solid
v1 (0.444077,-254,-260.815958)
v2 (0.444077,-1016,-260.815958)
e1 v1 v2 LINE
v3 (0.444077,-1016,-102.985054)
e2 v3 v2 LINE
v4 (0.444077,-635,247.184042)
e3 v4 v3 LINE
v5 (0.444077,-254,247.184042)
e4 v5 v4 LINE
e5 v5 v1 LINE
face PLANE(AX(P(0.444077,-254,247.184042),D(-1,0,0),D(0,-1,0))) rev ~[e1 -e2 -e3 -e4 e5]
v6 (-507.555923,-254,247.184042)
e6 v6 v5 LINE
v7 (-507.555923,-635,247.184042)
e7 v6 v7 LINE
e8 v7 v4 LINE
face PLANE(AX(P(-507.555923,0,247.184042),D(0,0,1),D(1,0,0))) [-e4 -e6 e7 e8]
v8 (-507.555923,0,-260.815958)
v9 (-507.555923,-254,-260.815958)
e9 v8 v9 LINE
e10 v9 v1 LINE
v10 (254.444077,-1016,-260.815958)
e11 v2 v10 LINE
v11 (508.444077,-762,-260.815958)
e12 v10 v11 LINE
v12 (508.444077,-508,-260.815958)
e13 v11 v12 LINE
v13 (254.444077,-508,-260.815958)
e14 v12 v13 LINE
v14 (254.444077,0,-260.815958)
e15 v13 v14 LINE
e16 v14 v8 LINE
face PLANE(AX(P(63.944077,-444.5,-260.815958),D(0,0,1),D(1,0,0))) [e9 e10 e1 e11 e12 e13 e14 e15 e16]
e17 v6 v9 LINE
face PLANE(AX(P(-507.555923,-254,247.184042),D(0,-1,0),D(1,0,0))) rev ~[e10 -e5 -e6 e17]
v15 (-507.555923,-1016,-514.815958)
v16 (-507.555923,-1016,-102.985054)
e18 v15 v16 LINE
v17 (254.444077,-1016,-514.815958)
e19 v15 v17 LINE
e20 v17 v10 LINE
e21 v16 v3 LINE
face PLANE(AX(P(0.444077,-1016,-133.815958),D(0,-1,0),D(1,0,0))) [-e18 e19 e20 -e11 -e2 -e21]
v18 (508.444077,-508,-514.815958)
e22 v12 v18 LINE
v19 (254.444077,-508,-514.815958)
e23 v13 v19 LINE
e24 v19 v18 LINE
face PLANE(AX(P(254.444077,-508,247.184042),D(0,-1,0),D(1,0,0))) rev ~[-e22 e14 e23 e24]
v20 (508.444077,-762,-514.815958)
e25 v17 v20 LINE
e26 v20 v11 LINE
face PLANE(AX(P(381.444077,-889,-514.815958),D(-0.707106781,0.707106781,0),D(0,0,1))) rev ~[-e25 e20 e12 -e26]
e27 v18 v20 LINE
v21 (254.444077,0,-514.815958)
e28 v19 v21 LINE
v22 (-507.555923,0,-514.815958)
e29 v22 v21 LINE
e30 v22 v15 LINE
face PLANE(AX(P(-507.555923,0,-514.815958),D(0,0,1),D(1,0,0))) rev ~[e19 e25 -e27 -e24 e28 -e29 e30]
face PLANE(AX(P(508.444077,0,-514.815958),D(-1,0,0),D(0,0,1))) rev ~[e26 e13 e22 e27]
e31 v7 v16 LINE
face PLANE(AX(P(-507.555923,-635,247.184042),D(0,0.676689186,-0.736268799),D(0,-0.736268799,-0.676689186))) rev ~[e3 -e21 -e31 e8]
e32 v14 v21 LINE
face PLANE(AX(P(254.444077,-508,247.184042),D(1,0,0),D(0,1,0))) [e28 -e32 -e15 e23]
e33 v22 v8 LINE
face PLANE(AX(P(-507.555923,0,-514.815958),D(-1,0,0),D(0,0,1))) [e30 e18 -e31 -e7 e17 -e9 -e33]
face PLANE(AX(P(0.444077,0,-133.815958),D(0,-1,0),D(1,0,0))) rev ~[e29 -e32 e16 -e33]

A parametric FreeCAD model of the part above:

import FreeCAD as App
import Part
import Sketcher
from FreeCAD import Vector
Q = App.Units.Quantity


def edges_at(feature, points):
    """Names of the edges that pass closest to the given points."""
    edges = feature.Shape.Edges
    near = lambda p: min(range(len(edges)), key=lambda i: edges[i].distToShape(Part.Vertex(*p))[0])
    return sorted({f"Edge{near(p) + 1}" for p in points})

doc = App.newDocument("Part")
body = doc.addObject("PartDesign::Body", "Body")

sketch1 = doc.addObject("Sketcher::SketchObject", "Sketch")
body.addObject(sketch1)
sketch1.AttachmentSupport = (doc.XZ_Plane, [""])
sketch1.MapMode = "FlatFace"
sketch1.addGeometry(Part.LineSegment(Vector(-507.555923, 247.184042, 0), Vector(-507.555923, -514.815958, 0)), False)
sketch1.addGeometry(Part.LineSegment(Vector(-507.555923, -514.815958, 0), Vector(508.444077, -514.815958, 0)), False)
sketch1.addGeometry(Part.LineSegment(Vector(508.444077, -514.815958, 0), Vector(508.444077, 247.184042, 0)), False)
sketch1.addGeometry(Part.LineSegment(Vector(508.444077, 247.184042, 0), Vector(-507.555923, 247.184042, 0)), False)
sketch1.addConstraint(Sketcher.Constraint("Coincident", 0, 2, 1, 1))
sketch1.addConstraint(Sketcher.Constraint("Coincident", 1, 2, 2, 1))
sketch1.addConstraint(Sketcher.Constraint("Coincident", 2, 2, 3, 1))
sketch1.addConstraint(Sketcher.Constraint("Coincident", 3, 2, 0, 1))
sketch1.addConstraint(Sketcher.Constraint("Vertical", 0))
sketch1.addConstraint(Sketcher.Constraint("Horizontal", 1))
sketch1.addConstraint(Sketcher.Constraint("Vertical", 2))
sketch1.addConstraint(Sketcher.Constraint("Horizontal", 3))
sketch1.addConstraint(Sketcher.Constraint("DistanceX", 1, 1, 1, 2, Q("40 in")))
sketch1.addConstraint(Sketcher.Constraint("DistanceY", 0, 2, 0, 1, Q("30 in")))
sketch1.addConstraint(Sketcher.Constraint("DistanceY", 0, 2, -1, 1, Q("514.815958 mm")))
sketch1.addConstraint(Sketcher.Constraint("DistanceX", 0, 2, -1, 1, Q("507.555923 mm")))
pad1 = doc.addObject("PartDesign::Pad", "Pad")
body.addObject(pad1)
pad1.Profile = sketch1
pad1.Length = Q("40 in")

sketch2 = doc.addObject("Sketcher::SketchObject", "Sketch001")
body.addObject(sketch2)
sketch2.AttachmentSupport = (doc.XY_Plane, [""])
sketch2.MapMode = "FlatFace"
sketch2.AttachmentOffset = App.Placement(Vector(0, 0, 247.184042), App.Rotation())
sketch2.addGeometry(Part.LineSegment(Vector(254.444077, 0, 0), Vector(254.444077, -508, 0)), False)
sketch2.addGeometry(Part.LineSegment(Vector(254.444077, -508, 0), Vector(508.444077, -508, 0)), False)
sketch2.addGeometry(Part.LineSegment(Vector(508.444077, -508, 0), Vector(508.444077, 0, 0)), False)
sketch2.addGeometry(Part.LineSegment(Vector(508.444077, 0, 0), Vector(254.444077, 0, 0)), False)
sketch2.addConstraint(Sketcher.Constraint("Coincident", 0, 2, 1, 1))
sketch2.addConstraint(Sketcher.Constraint("Coincident", 1, 2, 2, 1))
sketch2.addConstraint(Sketcher.Constraint("Coincident", 2, 2, 3, 1))
sketch2.addConstraint(Sketcher.Constraint("Coincident", 3, 2, 0, 1))
sketch2.addConstraint(Sketcher.Constraint("Vertical", 0))
sketch2.addConstraint(Sketcher.Constraint("Horizontal", 1))
sketch2.addConstraint(Sketcher.Constraint("Vertical", 2))
sketch2.addConstraint(Sketcher.Constraint("Horizontal", 3))
sketch2.addConstraint(Sketcher.Constraint("PointOnObject", 2, 2, -1))
sketch2.addConstraint(Sketcher.Constraint("DistanceX", 1, 1, 1, 2, Q("10 in")))
sketch2.addConstraint(Sketcher.Constraint("DistanceY", 0, 2, 0, 1, Q("20 in")))
sketch2.addConstraint(Sketcher.Constraint("DistanceX", -1, 1, 0, 2, Q("254.444077 mm")))
pocket1 = doc.addObject("PartDesign::Pocket", "Pocket")
body.addObject(pocket1)
pocket1.Profile = sketch2
pocket1.Length = Q("40 in")

sketch3 = doc.addObject("Sketcher::SketchObject", "Sketch002")
body.addObject(sketch3)
sketch3.AttachmentSupport = (doc.XY_Plane, [""])
sketch3.MapMode = "FlatFace"
sketch3.AttachmentOffset = App.Placement(Vector(0, 0, 247.184042), App.Rotation())
sketch3.addGeometry(Part.LineSegment(Vector(0.444077, -254, 0), Vector(0.444077, -1016, 0)), False)
sketch3.addGeometry(Part.LineSegment(Vector(0.444077, -1016, 0), Vector(508.444077, -1016, 0)), False)
sketch3.addGeometry(Part.LineSegment(Vector(508.444077, -1016, 0), Vector(508.444077, -508, 0)), False)
sketch3.addGeometry(Part.LineSegment(Vector(508.444077, -508, 0), Vector(254.444077, -508, 0)), False)
sketch3.addGeometry(Part.LineSegment(Vector(254.444077, -508, 0), Vector(254.444077, 0, 0)), False)
sketch3.addGeometry(Part.LineSegment(Vector(254.444077, 0, 0), Vector(-507.555923, 0, 0)), False)
sketch3.addGeometry(Part.LineSegment(Vector(-507.555923, 0, 0), Vector(-507.555923, -254, 0)), False)
sketch3.addGeometry(Part.LineSegment(Vector(-507.555923, -254, 0), Vector(0.444077, -254, 0)), False)
sketch3.addConstraint(Sketcher.Constraint("Coincident", 0, 2, 1, 1))
sketch3.addConstraint(Sketcher.Constraint("Coincident", 1, 2, 2, 1))
sketch3.addConstraint(Sketcher.Constraint("Coincident", 2, 2, 3, 1))
sketch3.addConstraint(Sketcher.Constraint("Coincident", 3, 2, 4, 1))
sketch3.addConstraint(Sketcher.Constraint("Coincident", 4, 2, 5, 1))
sketch3.addConstraint(Sketcher.Constraint("Coincident", 5, 2, 6, 1))
sketch3.addConstraint(Sketcher.Constraint("Coincident", 6, 2, 7, 1))
sketch3.addConstraint(Sketcher.Constraint("Coincident", 7, 2, 0, 1))
sketch3.addConstraint(Sketcher.Constraint("Vertical", 0))
sketch3.addConstraint(Sketcher.Constraint("Horizontal", 1))
sketch3.addConstraint(Sketcher.Constraint("Vertical", 2))
sketch3.addConstraint(Sketcher.Constraint("Horizontal", 3))
sketch3.addConstraint(Sketcher.Constraint("Vertical", 4))
sketch3.addConstraint(Sketcher.Constraint("Horizontal", 5))
sketch3.addConstraint(Sketcher.Constraint("Vertical", 6))
sketch3.addConstraint(Sketcher.Constraint("Horizontal", 7))
sketch3.addConstraint(Sketcher.Constraint("PointOnObject", 4, 2, -1))
sketch3.addConstraint(Sketcher.Constraint("Equal", 1, 7))
sketch3.addConstraint(Sketcher.Constraint("Equal", 5, 0))
sketch3.addConstraint(Sketcher.Constraint("Equal", 7, 2))
sketch3.addConstraint(Sketcher.Constraint("Equal", 2, 4))
sketch3.addConstraint(Sketcher.Constraint("DistanceX", 1, 1, 1, 2, Q("20 in")))
sketch3.addConstraint(Sketcher.Constraint("DistanceX", 3, 2, 3, 1, Q("10 in")))
sketch3.addConstraint(Sketcher.Constraint("DistanceX", -1, 1, 0, 2, Q("0.444077 mm")))
pocket2 = doc.addObject("PartDesign::Pocket", "Pocket001")
body.addObject(pocket2)
pocket2.Profile = sketch3
pocket2.Length = Q("20 in")

sketch4 = doc.addObject("Sketcher::SketchObject", "Sketch003")
body.addObject(sketch4)
sketch4.AttachmentSupport = (doc.YZ_Plane, [""])
sketch4.MapMode = "FlatFace"
sketch4.AttachmentOffset = App.Placement(Vector(0, 0, -507.555923), App.Rotation())
sketch4.addGeometry(Part.LineSegment(Vector(-1016, -102.985054, 0), Vector(-1016, 247.184042, 0)), False)
sketch4.addGeometry(Part.LineSegment(Vector(-1016, 247.184042, 0), Vector(-635, 247.184042, 0)), False)
sketch4.addGeometry(Part.LineSegment(Vector(-635, 247.184042, 0), Vector(-1016, -102.985054, 0)), False)
sketch4.addConstraint(Sketcher.Constraint("Coincident", 0, 2, 1, 1))
sketch4.addConstraint(Sketcher.Constraint("Coincident", 1, 2, 2, 1))
sketch4.addConstraint(Sketcher.Constraint("Coincident", 2, 2, 0, 1))
sketch4.addConstraint(Sketcher.Constraint("Vertical", 0))
sketch4.addConstraint(Sketcher.Constraint("Horizontal", 1))
sketch4.addConstraint(Sketcher.Constraint("DistanceX", 1, 1, 1, 2, Q("15 in")))
sketch4.addConstraint(Sketcher.Constraint("DistanceX", 0, 2, -1, 1, Q("40 in")))
sketch4.addConstraint(Sketcher.Constraint("DistanceY", 0, 1, 0, 2, Q("350.169096 mm")))
sketch4.addConstraint(Sketcher.Constraint("DistanceY", -1, 1, 0, 2, Q("247.184042 mm")))
pocket3 = doc.addObject("PartDesign::Pocket", "Pocket002")
body.addObject(pocket3)
pocket3.Profile = sketch4
pocket3.Length = Q("30 in")
pocket3.Reversed = True
doc.recompute()

chamfer = doc.addObject("PartDesign::Chamfer", "Chamfer")
body.addObject(chamfer)
chamfer.Base = (pocket3, edges_at(pocket3, [(508.444, -1016, -387.816)]))
chamfer.Size = Q("10 in")
body2 = doc.addObject("PartDesign::Body", "Body001")

sketch5 = doc.addObject("Sketcher::SketchObject", "Sketch004")
body2.addObject(sketch5)
sketch5.AttachmentSupport = (doc.getObject("XY_Plane001"), [""])
sketch5.MapMode = "FlatFace"
sketch5.AttachmentOffset = App.Placement(Vector(0, 0, 247.184042), App.Rotation())
sketch5.addGeometry(Part.LineSegment(Vector(254.444077, 0, 0), Vector(-506.655574, 0, 0)), False)
sketch5.addGeometry(Part.LineSegment(Vector(-506.655574, 0, 0), Vector(-506.655574, -254, 0)), False)
sketch5.addGeometry(Part.LineSegment(Vector(-506.655574, -254, 0), Vector(0.444077, -254, 0)), False)
sketch5.addGeometry(Part.LineSegment(Vector(0.444077, -254, 0), Vector(0.444077, -1016, 0)), False)
sketch5.addGeometry(Part.LineSegment(Vector(0.444077, -1016, 0), Vector(508.444077, -1016, 0)), False)
sketch5.addGeometry(Part.LineSegment(Vector(508.444077, -1016, 0), Vector(508.444077, -508, 0)), False)
sketch5.addGeometry(Part.LineSegment(Vector(508.444077, -508, 0), Vector(254.444077, -508, 0)), False)
sketch5.addGeometry(Part.LineSegment(Vector(254.444077, -508, 0), Vector(254.444077, 0, 0)), False)
sketch5.addConstraint(Sketcher.Constraint("Coincident", 0, 2, 1, 1))
sketch5.addConstraint(Sketcher.Constraint("Coincident", 1, 2, 2, 1))
sketch5.addConstraint(Sketcher.Constraint("Coincident", 2, 2, 3, 1))
sketch5.addConstraint(Sketcher.Constraint("Coincident", 3, 2, 4, 1))
sketch5.addConstraint(Sketcher.Constraint("Coincident", 4, 2, 5, 1))
sketch5.addConstraint(Sketcher.Constraint("Coincident", 5, 2, 6, 1))
sketch5.addConstraint(Sketcher.Constraint("Coincident", 6, 2, 7, 1))
sketch5.addConstraint(Sketcher.Constraint("Coincident", 7, 2, 0, 1))
sketch5.addConstraint(Sketcher.Constraint("Horizontal", 0))
sketch5.addConstraint(Sketcher.Constraint("Vertical", 1))
sketch5.addConstraint(Sketcher.Constraint("Horizontal", 2))
sketch5.addConstraint(Sketcher.Constraint("Vertical", 3))
sketch5.addConstraint(Sketcher.Constraint("Horizontal", 4))
sketch5.addConstraint(Sketcher.Constraint("Vertical", 5))
sketch5.addConstraint(Sketcher.Constraint("Horizontal", 6))
sketch5.addConstraint(Sketcher.Constraint("Vertical", 7))
sketch5.addConstraint(Sketcher.Constraint("PointOnObject", 0, 2, -1))
sketch5.addConstraint(Sketcher.Constraint("Equal", 6, 1))
sketch5.addConstraint(Sketcher.Constraint("Equal", 4, 5))
sketch5.addConstraint(Sketcher.Constraint("Equal", 5, 7))
sketch5.addConstraint(Sketcher.Constraint("DistanceX", 4, 1, 4, 2, Q("20 in")))
sketch5.addConstraint(Sketcher.Constraint("DistanceX", 6, 2, 6, 1, Q("10 in")))
sketch5.addConstraint(Sketcher.Constraint("DistanceX", 0, 2, 0, 1, Q("761.099651 mm")))
sketch5.addConstraint(Sketcher.Constraint("DistanceX", 0, 2, -1, 1, Q("506.655574 mm")))
pad2 = doc.addObject("PartDesign::Pad", "Pad001")
body2.addObject(pad2)
pad2.Profile = sketch5
pad2.Length = 25

sketch6 = doc.addObject("Sketcher::SketchObject", "Sketch005")
body2.addObject(sketch6)
sketch6.AttachmentSupport = (doc.getObject("XY_Plane001"), [""])
sketch6.MapMode = "FlatFace"
sketch6.AttachmentOffset = App.Placement(Vector(0, 0, 272.184042), App.Rotation())
sketch6.addGeometry(Part.LineSegment(Vector(-506.655574, -254, 0), Vector(0.444077, -254, 0)), False)
sketch6.addGeometry(Part.LineSegment(Vector(0.444077, -254, 0), Vector(0.444077, -1016, 0)), False)
sketch6.addGeometry(Part.LineSegment(Vector(0.444077, -1016, 0), Vector(508.444077, -1016, 0)), False)
sketch6.addGeometry(Part.LineSegment(Vector(508.444077, -1016, 0), Vector(508.444077, -508, 0)), False)
sketch6.addGeometry(Part.LineSegment(Vector(508.444077, -508, 0), Vector(254.444077, -508, 0)), False)
sketch6.addGeometry(Part.LineSegment(Vector(254.444077, -508, 0), Vector(254.444077, 0, 0)), False)
sketch6.addGeometry(Part.LineSegment(Vector(254.444077, 0, 0), Vector(-506.655574, 0, 0)), False)
sketch6.addGeometry(Part.LineSegment(Vector(-506.655574, 0, 0), Vector(-506.655574, -254, 0)), False)
sketch6.addConstraint(Sketcher.Constraint("Coincident", 0, 2, 1, 1))
sketch6.addConstraint(Sketcher.Constraint("Coincident", 1, 2, 2, 1))
sketch6.addConstraint(Sketcher.Constraint("Coincident", 2, 2, 3, 1))
sketch6.addConstraint(Sketcher.Constraint("Coincident", 3, 2, 4, 1))
sketch6.addConstraint(Sketcher.Constraint("Coincident", 4, 2, 5, 1))
sketch6.addConstraint(Sketcher.Constraint("Coincident", 5, 2, 6, 1))
sketch6.addConstraint(Sketcher.Constraint("Coincident", 6, 2, 7, 1))
sketch6.addConstraint(Sketcher.Constraint("Coincident", 7, 2, 0, 1))
sketch6.addConstraint(Sketcher.Constraint("Horizontal", 0))
sketch6.addConstraint(Sketcher.Constraint("Vertical", 1))
sketch6.addConstraint(Sketcher.Constraint("Horizontal", 2))
sketch6.addConstraint(Sketcher.Constraint("Vertical", 3))
sketch6.addConstraint(Sketcher.Constraint("Horizontal", 4))
sketch6.addConstraint(Sketcher.Constraint("Vertical", 5))
sketch6.addConstraint(Sketcher.Constraint("Horizontal", 6))
sketch6.addConstraint(Sketcher.Constraint("Vertical", 7))
sketch6.addConstraint(Sketcher.Constraint("PointOnObject", 5, 2, -1))
sketch6.addConstraint(Sketcher.Constraint("Equal", 2, 3))
sketch6.addConstraint(Sketcher.Constraint("Equal", 3, 5))
sketch6.addConstraint(Sketcher.Constraint("Equal", 4, 7))
sketch6.addConstraint(Sketcher.Constraint("DistanceX", 2, 1, 2, 2, Q("20 in")))
sketch6.addConstraint(Sketcher.Constraint("DistanceX", 4, 2, 4, 1, Q("10 in")))
sketch6.addConstraint(Sketcher.Constraint("DistanceX", 0, 1, 0, 2, Q("507.099651 mm")))
sketch6.addConstraint(Sketcher.Constraint("DistanceX", -1, 1, 0, 2, Q("0.444077 mm")))
pocket4 = doc.addObject("PartDesign::Pocket", "Pocket003")
body2.addObject(pocket4)
pocket4.Profile = sketch6
pocket4.Length = Q("10 in")

doc.recompute()
